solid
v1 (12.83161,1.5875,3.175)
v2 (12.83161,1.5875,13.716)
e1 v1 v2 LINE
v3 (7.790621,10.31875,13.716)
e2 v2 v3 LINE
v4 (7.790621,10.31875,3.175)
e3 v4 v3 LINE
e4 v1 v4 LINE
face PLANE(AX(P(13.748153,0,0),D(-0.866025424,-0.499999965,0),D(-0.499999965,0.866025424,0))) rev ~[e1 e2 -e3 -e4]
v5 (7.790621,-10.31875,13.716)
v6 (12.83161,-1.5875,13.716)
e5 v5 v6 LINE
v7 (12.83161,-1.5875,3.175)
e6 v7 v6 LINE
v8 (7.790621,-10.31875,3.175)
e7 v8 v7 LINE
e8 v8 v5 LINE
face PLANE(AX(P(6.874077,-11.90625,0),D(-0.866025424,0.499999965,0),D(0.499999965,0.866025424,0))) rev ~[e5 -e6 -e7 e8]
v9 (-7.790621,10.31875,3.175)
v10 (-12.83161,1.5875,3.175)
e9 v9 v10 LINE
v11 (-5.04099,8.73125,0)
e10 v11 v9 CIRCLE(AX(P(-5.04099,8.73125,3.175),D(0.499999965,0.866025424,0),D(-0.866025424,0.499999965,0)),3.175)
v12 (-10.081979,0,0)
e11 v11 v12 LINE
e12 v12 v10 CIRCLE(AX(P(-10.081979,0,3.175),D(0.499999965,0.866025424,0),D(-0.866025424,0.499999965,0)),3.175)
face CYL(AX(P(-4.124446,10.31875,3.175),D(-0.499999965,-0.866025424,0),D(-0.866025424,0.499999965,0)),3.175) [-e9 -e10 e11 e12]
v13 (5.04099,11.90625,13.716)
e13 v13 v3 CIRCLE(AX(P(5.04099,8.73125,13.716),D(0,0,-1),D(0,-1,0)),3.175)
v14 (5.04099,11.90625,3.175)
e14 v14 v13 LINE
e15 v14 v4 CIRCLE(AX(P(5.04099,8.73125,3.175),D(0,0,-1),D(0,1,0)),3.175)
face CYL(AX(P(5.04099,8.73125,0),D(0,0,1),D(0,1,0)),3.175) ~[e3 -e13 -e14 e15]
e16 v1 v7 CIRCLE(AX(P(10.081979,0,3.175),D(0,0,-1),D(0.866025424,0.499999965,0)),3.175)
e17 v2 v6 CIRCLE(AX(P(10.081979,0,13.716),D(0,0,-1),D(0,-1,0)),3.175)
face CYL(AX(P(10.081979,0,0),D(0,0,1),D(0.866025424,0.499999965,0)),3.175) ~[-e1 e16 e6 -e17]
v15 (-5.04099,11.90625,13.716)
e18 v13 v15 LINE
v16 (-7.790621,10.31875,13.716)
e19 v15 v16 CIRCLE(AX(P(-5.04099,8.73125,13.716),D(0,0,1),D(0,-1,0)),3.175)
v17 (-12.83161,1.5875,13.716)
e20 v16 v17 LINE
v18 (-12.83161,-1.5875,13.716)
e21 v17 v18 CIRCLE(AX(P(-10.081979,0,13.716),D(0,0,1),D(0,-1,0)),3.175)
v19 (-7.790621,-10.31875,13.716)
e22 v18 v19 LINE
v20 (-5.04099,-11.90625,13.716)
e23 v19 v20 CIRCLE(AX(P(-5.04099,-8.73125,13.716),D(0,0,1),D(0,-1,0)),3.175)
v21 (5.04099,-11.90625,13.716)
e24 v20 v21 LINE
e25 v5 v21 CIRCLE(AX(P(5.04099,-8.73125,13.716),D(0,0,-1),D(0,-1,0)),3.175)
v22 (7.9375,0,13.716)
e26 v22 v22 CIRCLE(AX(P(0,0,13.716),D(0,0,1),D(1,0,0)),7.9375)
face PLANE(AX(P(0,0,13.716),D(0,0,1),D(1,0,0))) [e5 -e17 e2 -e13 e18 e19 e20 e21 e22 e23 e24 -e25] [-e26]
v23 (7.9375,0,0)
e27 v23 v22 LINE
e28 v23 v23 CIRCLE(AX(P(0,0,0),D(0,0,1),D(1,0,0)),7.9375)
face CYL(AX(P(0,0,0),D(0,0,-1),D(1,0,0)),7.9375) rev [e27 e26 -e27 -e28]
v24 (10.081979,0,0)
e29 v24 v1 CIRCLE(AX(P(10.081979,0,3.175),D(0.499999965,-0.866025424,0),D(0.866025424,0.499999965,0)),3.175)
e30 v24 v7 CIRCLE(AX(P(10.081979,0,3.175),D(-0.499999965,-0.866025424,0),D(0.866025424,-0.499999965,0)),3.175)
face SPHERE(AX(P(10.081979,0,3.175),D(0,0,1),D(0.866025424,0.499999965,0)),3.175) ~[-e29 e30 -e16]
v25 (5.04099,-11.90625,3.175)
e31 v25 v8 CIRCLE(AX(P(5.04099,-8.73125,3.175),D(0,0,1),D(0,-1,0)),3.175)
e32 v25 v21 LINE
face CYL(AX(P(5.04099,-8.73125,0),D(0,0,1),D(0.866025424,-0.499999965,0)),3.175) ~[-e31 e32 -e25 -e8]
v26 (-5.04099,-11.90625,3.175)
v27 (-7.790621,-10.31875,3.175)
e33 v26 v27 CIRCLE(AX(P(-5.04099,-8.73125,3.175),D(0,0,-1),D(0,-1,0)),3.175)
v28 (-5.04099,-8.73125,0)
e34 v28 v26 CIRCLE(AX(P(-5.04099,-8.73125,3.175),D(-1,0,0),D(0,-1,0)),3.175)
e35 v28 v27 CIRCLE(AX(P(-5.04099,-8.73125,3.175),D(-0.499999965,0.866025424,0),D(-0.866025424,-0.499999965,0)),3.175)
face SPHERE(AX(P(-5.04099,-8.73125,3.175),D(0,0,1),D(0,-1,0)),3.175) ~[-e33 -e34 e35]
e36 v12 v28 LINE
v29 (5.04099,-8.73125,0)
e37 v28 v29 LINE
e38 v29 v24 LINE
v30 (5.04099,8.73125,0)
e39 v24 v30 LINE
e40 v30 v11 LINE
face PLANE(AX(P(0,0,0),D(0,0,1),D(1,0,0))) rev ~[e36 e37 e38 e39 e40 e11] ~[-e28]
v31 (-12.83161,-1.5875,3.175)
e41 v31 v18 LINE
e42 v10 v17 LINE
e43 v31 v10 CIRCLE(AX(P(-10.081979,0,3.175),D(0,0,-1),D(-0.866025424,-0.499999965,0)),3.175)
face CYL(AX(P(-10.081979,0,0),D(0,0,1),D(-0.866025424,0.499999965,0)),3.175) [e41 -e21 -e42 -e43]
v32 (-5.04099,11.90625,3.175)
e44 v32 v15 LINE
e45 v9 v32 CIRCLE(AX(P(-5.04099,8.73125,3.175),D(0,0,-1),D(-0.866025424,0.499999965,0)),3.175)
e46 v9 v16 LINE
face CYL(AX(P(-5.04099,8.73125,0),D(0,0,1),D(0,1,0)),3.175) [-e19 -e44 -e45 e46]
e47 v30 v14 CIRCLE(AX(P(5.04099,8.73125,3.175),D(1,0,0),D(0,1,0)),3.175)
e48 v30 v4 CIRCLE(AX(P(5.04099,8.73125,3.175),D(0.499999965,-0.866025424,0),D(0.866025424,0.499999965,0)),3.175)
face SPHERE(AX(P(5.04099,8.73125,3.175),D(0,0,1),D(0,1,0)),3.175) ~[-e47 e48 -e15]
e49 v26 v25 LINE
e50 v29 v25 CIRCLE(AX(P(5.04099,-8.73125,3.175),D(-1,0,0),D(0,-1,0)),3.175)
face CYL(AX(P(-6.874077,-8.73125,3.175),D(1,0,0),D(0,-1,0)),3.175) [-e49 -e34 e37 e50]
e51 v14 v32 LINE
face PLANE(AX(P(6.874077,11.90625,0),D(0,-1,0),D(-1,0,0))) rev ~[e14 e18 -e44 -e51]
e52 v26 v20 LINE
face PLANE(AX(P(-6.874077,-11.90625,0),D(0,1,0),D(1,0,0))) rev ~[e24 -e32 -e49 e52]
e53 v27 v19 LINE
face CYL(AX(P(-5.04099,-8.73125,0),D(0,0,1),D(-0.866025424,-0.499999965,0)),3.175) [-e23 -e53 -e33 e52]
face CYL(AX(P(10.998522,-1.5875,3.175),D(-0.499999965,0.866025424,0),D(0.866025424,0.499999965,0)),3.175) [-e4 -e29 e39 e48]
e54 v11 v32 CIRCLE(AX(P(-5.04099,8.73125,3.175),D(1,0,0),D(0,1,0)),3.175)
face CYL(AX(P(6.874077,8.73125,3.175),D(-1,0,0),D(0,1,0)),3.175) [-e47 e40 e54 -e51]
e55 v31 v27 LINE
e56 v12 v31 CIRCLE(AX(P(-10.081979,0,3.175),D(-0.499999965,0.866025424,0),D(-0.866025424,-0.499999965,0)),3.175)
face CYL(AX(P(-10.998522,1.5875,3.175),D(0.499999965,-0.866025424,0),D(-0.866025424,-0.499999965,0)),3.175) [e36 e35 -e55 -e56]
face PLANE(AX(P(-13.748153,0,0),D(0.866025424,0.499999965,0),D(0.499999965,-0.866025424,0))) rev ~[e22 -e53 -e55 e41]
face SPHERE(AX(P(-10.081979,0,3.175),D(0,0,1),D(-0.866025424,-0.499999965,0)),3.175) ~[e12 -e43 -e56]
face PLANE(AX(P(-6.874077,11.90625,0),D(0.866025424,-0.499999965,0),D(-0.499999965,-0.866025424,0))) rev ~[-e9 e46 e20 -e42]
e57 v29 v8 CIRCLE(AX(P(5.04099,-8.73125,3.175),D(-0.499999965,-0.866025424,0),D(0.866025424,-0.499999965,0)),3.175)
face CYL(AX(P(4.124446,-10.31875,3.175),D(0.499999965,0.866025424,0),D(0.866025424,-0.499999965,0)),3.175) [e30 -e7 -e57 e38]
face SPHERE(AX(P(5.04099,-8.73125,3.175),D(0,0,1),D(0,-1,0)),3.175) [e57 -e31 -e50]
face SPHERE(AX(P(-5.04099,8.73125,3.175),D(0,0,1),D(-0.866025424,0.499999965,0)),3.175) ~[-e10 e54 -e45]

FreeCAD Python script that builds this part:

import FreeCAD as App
import Part
import Sketcher
Q = App.Units.Quantity


def edges_at(feature, points):
    """Names of the edges that pass closest to the given points."""
    edges = feature.Shape.Edges
    near = lambda p: min(range(len(edges)), key=lambda i: edges[i].distToShape(Part.Vertex(*p))[0])
    return sorted({f"Edge{near(p) + 1}" for p in points})


def add_polygon(sketch, points):
    """Adds a closed chain of lines whose ends are joined by coincident constraints."""
    first, n = sketch.GeometryCount, len(points)
    for a, b in zip(points, points[1:] + points[:1]):
        sketch.addGeometry(Part.LineSegment(App.Vector(*a, 0), App.Vector(*b, 0)), False)
    for i in range(n):
        sketch.addConstraint(Sketcher.Constraint("Coincident", first + i, 2, first + (i + 1) % n, 1))

doc = App.newDocument("Part")
body = doc.addObject("PartDesign::Body", "Body")

sketch1 = body.newObject("Sketcher::SketchObject", "Sketch")
sketch1.AttachmentSupport = (doc.getObject("XY_Plane"), [""])
sketch1.MapMode = "FlatFace"
add_polygon(sketch1, [(7, 12), (-7, 12), (-14, 0), (-7, -12), (7, -12), (14, 0)])
sketch1.addGeometry(Part.Circle(App.Vector(0, 0, 0), App.Vector(0, 0, 1), 8), False)
sketch1.addConstraint(Sketcher.Constraint("Horizontal", 0))
sketch1.addConstraint(Sketcher.Constraint("Horizontal", 3))
sketch1.addConstraint(Sketcher.Constraint("Coincident", 6, 3, -1, 1))
sketch1.addConstraint(Sketcher.Constraint("Symmetric", 0, 2, 3, 2, -1, 1))
sketch1.addConstraint(Sketcher.Constraint("Symmetric", 1, 2, 4, 2, -1, 1))
sketch1.addConstraint(Sketcher.Constraint("PointOnObject", 1, 2, -1))
sketch1.addConstraint(Sketcher.Constraint("Parallel", 2, 5))
sketch1.addConstraint(Sketcher.Constraint("Vertical", 0, 2, 2, 2))
sketch1.addConstraint(Sketcher.Constraint("Diameter", 6, Q("0.625 in")))
sketch1.addConstraint(Sketcher.Constraint("Angle", 1, Q("-119.999998 deg")))
sketch1.addConstraint(Sketcher.Constraint("DistanceY", -1, 1, 0, 2, Q("0.46875 in")))
sketch1.addConstraint(Sketcher.Constraint("DistanceX", 0, 2, 0, 1, Q("13.748154 mm")))
pad1 = body.newObject("PartDesign::Pad", "Pad")
pad1.Profile = sketch1
pad1.Length = Q("0.54 in")
doc.recompute()

fillet = body.newObject("PartDesign::Fillet", "Fillet")
fillet.Base = (pad1, edges_at(pad1, [
    (-13.748, 0, 6.858),
    (10.311, -5.953, 0),
    (13.748, 0, 6.858),
    (6.874, -11.906, 6.858),
    (-6.874, -11.906, 6.858),
    (6.874, 11.906, 6.858),
    (-6.874, 11.906, 6.858),
    (0, -11.906, 0),
    (-10.311, -5.953, 0),
    (-10.311, 5.953, 0),
    (0, 11.906, 0),
    (10.311, 5.953, 0),
]))
fillet.Radius = Q("0.125 in")

doc.recompute()
